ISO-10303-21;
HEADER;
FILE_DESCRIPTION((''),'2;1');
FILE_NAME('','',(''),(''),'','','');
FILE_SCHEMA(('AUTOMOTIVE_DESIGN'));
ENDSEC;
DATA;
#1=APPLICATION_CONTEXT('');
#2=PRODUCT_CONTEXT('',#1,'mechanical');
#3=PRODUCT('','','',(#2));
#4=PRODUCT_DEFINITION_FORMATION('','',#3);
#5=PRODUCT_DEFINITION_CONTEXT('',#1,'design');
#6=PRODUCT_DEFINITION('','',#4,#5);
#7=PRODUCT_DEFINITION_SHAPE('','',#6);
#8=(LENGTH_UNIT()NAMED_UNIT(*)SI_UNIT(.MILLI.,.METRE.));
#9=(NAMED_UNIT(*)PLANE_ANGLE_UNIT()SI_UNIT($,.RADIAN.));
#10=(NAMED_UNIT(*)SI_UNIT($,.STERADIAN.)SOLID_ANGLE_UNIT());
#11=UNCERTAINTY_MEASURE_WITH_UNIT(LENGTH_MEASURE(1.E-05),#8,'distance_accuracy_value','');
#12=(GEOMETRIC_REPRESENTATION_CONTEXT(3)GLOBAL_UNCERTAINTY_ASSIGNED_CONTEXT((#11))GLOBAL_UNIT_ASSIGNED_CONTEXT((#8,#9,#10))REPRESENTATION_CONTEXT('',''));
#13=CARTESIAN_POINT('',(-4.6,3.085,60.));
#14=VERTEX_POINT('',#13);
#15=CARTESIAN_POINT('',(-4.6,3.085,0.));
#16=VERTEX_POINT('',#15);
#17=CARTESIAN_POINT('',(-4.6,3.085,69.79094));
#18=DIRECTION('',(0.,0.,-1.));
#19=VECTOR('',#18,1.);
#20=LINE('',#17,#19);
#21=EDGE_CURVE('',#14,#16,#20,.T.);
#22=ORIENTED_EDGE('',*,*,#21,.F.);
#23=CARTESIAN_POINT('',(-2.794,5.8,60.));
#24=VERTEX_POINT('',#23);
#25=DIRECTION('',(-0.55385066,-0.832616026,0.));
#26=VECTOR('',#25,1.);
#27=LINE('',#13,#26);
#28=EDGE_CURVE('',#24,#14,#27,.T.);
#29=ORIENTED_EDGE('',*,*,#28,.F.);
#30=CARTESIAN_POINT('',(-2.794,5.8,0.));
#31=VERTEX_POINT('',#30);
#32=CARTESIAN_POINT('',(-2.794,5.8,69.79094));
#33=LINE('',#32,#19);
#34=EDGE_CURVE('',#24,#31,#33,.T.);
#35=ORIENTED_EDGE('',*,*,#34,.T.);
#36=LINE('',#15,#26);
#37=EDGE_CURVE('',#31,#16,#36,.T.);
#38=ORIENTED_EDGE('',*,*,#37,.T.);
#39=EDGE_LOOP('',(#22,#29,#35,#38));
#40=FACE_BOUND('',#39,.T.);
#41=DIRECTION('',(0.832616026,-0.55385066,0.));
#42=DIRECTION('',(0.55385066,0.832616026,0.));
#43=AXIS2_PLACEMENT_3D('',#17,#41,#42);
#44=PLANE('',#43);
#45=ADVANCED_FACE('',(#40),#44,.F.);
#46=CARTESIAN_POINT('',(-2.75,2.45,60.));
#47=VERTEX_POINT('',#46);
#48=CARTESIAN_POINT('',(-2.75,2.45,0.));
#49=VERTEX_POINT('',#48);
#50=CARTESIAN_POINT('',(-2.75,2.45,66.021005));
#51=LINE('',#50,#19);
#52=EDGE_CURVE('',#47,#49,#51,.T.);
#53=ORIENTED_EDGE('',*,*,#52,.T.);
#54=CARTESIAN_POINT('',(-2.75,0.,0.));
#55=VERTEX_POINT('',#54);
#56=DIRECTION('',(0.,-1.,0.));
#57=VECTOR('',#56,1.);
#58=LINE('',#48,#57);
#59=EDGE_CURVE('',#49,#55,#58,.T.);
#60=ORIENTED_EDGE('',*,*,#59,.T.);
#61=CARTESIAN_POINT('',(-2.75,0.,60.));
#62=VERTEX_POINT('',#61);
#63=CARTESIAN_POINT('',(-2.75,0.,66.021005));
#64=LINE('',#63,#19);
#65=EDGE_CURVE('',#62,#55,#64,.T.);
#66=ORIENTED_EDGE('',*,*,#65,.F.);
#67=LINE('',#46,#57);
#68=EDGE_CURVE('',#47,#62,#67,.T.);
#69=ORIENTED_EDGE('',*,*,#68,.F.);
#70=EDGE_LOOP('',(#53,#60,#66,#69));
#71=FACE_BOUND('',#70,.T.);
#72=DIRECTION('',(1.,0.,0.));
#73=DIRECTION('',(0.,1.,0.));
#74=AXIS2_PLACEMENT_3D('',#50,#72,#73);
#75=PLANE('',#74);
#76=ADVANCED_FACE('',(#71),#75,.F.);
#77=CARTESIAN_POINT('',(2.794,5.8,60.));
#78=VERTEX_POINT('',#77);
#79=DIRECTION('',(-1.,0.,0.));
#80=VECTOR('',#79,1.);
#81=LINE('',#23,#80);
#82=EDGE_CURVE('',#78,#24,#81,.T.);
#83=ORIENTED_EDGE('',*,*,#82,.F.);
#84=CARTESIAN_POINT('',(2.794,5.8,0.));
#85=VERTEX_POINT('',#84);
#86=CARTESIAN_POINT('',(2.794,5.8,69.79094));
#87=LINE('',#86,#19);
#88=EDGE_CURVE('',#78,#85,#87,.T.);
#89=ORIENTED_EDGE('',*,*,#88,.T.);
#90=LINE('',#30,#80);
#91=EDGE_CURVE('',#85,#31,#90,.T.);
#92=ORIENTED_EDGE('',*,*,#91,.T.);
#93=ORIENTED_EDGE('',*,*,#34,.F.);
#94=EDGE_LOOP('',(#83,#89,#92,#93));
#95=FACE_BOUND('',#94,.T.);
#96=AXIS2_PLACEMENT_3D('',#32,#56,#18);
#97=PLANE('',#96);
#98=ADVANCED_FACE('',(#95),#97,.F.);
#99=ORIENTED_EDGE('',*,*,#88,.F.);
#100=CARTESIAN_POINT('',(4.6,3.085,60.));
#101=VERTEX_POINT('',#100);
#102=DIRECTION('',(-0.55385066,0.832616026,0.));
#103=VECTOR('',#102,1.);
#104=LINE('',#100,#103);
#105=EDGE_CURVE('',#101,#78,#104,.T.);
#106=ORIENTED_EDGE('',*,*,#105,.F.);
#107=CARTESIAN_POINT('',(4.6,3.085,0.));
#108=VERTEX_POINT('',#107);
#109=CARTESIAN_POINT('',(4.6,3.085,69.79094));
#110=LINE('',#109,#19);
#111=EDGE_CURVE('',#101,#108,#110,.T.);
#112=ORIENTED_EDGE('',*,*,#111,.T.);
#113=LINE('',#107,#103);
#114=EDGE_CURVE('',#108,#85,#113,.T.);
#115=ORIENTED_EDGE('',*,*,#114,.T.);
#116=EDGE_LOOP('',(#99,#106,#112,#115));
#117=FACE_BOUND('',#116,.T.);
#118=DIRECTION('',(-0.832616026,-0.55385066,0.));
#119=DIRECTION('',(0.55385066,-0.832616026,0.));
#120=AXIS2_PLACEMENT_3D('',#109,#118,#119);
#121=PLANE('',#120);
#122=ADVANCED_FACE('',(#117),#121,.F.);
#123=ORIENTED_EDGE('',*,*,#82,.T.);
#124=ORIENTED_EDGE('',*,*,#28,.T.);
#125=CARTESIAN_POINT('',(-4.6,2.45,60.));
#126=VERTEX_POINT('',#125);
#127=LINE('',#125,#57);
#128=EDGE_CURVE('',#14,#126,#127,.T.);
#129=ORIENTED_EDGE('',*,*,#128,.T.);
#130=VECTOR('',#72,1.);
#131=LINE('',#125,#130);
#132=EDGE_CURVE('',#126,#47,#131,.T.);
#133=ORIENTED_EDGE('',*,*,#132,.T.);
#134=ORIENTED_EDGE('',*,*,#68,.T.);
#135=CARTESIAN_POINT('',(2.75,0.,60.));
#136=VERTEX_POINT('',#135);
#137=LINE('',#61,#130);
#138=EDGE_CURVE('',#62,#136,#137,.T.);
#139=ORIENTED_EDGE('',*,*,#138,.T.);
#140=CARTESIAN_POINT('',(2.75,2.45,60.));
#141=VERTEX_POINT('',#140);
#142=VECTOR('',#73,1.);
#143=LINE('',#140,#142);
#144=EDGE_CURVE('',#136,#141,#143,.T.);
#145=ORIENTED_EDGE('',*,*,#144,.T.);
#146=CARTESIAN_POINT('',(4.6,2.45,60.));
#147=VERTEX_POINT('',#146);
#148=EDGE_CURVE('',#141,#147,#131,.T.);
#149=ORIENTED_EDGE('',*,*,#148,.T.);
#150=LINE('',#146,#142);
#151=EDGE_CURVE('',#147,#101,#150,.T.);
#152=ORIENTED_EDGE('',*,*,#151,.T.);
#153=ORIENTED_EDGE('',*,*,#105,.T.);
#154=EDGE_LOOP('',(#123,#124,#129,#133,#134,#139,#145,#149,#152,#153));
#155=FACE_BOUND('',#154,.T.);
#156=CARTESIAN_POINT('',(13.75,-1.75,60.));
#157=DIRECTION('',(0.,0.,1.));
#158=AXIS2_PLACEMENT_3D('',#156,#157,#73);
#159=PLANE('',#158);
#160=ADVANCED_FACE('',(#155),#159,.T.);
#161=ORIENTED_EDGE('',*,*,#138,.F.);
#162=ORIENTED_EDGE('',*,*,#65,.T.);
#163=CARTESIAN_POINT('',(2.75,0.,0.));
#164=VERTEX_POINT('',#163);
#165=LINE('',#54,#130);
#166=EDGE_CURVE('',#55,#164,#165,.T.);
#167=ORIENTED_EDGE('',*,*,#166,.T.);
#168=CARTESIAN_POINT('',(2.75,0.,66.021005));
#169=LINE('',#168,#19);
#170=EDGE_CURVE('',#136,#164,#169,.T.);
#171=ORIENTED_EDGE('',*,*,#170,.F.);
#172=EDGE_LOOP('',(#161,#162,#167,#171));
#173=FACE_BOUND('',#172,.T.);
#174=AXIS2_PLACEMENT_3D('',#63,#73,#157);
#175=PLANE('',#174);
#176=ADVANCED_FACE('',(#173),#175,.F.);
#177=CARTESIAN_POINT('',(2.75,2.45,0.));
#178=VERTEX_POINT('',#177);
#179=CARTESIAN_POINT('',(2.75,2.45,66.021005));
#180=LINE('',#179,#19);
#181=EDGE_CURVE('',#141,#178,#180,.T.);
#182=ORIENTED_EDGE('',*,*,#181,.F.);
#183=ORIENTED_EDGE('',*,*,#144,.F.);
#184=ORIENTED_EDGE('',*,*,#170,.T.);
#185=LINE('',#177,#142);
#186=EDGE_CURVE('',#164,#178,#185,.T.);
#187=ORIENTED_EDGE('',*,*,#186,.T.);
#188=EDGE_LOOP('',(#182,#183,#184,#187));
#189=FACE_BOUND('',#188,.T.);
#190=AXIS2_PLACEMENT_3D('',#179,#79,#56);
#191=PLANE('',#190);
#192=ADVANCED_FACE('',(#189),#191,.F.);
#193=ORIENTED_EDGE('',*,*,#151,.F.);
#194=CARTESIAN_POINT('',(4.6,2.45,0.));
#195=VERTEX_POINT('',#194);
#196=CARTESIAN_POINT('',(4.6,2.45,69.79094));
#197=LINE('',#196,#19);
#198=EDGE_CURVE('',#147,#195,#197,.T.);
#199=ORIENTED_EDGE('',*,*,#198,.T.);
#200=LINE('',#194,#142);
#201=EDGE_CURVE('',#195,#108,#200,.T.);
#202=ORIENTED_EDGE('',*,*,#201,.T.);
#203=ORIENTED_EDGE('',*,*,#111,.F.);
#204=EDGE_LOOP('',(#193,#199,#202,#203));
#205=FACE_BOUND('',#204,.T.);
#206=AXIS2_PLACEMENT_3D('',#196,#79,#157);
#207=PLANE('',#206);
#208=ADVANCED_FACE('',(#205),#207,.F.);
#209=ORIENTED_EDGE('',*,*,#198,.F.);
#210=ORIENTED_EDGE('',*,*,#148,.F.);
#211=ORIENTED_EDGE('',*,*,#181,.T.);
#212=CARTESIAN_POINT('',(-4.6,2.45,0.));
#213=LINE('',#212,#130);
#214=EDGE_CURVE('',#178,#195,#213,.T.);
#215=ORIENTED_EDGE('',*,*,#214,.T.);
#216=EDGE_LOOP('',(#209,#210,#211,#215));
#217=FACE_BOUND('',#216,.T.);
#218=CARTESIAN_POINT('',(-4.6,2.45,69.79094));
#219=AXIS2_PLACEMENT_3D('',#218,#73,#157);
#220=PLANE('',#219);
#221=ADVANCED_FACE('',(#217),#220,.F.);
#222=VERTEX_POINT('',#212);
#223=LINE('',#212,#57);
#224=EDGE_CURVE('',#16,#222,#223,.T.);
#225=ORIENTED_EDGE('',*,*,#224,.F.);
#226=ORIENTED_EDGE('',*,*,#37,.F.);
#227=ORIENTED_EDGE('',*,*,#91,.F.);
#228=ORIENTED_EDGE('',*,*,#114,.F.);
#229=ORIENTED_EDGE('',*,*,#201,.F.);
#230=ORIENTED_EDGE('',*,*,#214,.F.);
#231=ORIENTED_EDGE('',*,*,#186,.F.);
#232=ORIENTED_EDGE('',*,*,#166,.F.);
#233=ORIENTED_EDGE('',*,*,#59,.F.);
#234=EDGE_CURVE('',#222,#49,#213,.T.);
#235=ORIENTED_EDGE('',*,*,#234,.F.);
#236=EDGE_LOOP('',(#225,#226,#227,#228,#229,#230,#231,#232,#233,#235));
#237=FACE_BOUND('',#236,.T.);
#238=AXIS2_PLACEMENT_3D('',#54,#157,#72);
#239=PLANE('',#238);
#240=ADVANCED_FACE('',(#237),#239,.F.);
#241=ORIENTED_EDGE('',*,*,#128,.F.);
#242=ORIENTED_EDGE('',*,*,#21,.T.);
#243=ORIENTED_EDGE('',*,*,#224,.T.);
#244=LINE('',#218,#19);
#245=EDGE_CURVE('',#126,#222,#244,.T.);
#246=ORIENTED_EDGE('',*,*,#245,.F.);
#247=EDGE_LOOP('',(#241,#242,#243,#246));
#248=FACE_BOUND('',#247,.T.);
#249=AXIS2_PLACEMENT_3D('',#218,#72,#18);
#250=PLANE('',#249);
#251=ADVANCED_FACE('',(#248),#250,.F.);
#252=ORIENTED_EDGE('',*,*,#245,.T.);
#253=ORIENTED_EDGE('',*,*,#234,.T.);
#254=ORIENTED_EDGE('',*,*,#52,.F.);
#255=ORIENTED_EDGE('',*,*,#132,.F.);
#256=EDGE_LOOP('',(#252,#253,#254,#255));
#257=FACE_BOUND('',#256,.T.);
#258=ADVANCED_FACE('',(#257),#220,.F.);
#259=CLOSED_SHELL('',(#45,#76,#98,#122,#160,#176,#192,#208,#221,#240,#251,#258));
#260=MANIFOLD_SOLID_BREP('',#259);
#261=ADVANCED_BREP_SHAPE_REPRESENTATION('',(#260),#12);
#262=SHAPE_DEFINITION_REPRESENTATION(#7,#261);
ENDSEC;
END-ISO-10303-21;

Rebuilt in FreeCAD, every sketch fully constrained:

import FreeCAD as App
import Part
import Sketcher
Q = App.Units.Quantity

doc = App.newDocument("Part")
params = doc.addObject("Spreadsheet::Sheet", "Params")
for row, (alias, value) in enumerate([
    ("sketch1_width", "5.5 mm"),
    ("sketch1_height", "2.45 mm"),
    ("pad1_length", "60 mm"),
    ("sketch2_width", "9.2 mm"),
    ("pad2_length", "60 mm"),
], start=1):
    params.set(f"A{row}", alias)
    params.set(f"B{row}", "=" + value)
    params.setAlias(f"B{row}", alias)

body = doc.addObject("PartDesign::Body", "Body")

# Sketch on XY plane
sketch1 = body.newObject("Sketcher::SketchObject", "Sketch")
sketch1.AttachmentSupport = (doc.getObject("XY_Plane"), [""])
sketch1.MapMode = "FlatFace"
sketch1.addGeometry([
    Part.LineSegment(App.Vector(-2.8, 2.5, 0), App.Vector(-2.8, 0, 0)),
    Part.LineSegment(App.Vector(-2.8, 0, 0), App.Vector(2.8, 0, 0)),
    Part.LineSegment(App.Vector(2.8, 0, 0), App.Vector(2.8, 2.5, 0)),
    Part.LineSegment(App.Vector(2.8, 2.5, 0), App.Vector(-2.8, 2.5, 0)),
], False)
sketch1.addConstraint([
    Sketcher.Constraint("Coincident", 0, 2, 1, 1),
    Sketcher.Constraint("Coincident", 1, 2, 2, 1),
    Sketcher.Constraint("Coincident", 2, 2, 3, 1),
    Sketcher.Constraint("Coincident", 3, 2, 0, 1),
    Sketcher.Constraint("Vertical", 0),
    Sketcher.Constraint("Horizontal", 1),
    Sketcher.Constraint("Vertical", 2),
    Sketcher.Constraint("Horizontal", 3),
    Sketcher.Constraint("Symmetric", 0, 2, 1, 2, -1, 1),
    Sketcher.Constraint("DistanceX", 1, 1, 1, 2, Q("5.5 mm")),
    Sketcher.Constraint("DistanceY", 0, 2, 0, 1, Q("2.45 mm")),
])
sketch1.setExpression("Constraints[9]", "Params.sketch1_width")
sketch1.setExpression("Constraints[10]", "Params.sketch1_height")
pad1 = body.newObject("PartDesign::Pad", "Pad")
pad1.Profile = sketch1
pad1.setExpression("Length", "Params.pad1_length")

# Sketch on XY plane
sketch2 = body.newObject("Sketcher::SketchObject", "Sketch001")
sketch2.AttachmentSupport = (doc.getObject("XY_Plane"), [""])
sketch2.MapMode = "FlatFace"
sketch2.addGeometry([
    Part.LineSegment(App.Vector(-4.6, 2.5, 0), App.Vector(4.6, 2.5, 0)),  # 0
    Part.LineSegment(App.Vector(4.6, 2.5, 0), App.Vector(4.6, 3.1, 0)),  # 1
    Part.LineSegment(App.Vector(4.6, 3.1, 0), App.Vector(2.8, 5.8, 0)),  # 2
    Part.LineSegment(App.Vector(2.8, 5.8, 0), App.Vector(-2.8, 5.8, 0)),  # 3
    Part.LineSegment(App.Vector(-2.8, 5.8, 0), App.Vector(-4.6, 3.1, 0)),  # 4
    Part.LineSegment(App.Vector(-4.6, 3.1, 0), App.Vector(-4.6, 2.5, 0)),  # 5
], False)
sketch2.addConstraint([
    Sketcher.Constraint("Coincident", 0, 2, 1, 1),
    Sketcher.Constraint("Coincident", 1, 2, 2, 1),
    Sketcher.Constraint("Coincident", 2, 2, 3, 1),
    Sketcher.Constraint("Coincident", 3, 2, 4, 1),
    Sketcher.Constraint("Coincident", 4, 2, 5, 1),
    Sketcher.Constraint("Coincident", 5, 2, 0, 1),
    Sketcher.Constraint("Horizontal", 0),
    Sketcher.Constraint("Vertical", 1),
    Sketcher.Constraint("Horizontal", 3),
    Sketcher.Constraint("Vertical", 5),
    Sketcher.Constraint("Symmetric", 1, 2, 4, 2, -2),
    Sketcher.Constraint("Equal", 2, 4),
    Sketcher.Constraint("DistanceX", 0, 1, 0, 2, Q("9.2 mm")),
    Sketcher.Constraint("DistanceY", -1, 1, 2, 2, Q("5.8 mm")),
    Sketcher.Constraint("DistanceX", 3, 2, 3, 1, Q("5.588 mm")),
    Sketcher.Constraint("DistanceY", 1, 1, 1, 2, Q("0.635 mm")),
    Sketcher.Constraint("DistanceY", -1, 1, 0, 2, Q("2.45 mm")),
])
sketch2.setExpression("Constraints[12]", "Params.sketch2_width")
pad2 = body.newObject("PartDesign::Pad", "Pad001")
pad2.Profile = sketch2
pad2.setExpression("Length", "Params.pad2_length")

doc.recompute()
